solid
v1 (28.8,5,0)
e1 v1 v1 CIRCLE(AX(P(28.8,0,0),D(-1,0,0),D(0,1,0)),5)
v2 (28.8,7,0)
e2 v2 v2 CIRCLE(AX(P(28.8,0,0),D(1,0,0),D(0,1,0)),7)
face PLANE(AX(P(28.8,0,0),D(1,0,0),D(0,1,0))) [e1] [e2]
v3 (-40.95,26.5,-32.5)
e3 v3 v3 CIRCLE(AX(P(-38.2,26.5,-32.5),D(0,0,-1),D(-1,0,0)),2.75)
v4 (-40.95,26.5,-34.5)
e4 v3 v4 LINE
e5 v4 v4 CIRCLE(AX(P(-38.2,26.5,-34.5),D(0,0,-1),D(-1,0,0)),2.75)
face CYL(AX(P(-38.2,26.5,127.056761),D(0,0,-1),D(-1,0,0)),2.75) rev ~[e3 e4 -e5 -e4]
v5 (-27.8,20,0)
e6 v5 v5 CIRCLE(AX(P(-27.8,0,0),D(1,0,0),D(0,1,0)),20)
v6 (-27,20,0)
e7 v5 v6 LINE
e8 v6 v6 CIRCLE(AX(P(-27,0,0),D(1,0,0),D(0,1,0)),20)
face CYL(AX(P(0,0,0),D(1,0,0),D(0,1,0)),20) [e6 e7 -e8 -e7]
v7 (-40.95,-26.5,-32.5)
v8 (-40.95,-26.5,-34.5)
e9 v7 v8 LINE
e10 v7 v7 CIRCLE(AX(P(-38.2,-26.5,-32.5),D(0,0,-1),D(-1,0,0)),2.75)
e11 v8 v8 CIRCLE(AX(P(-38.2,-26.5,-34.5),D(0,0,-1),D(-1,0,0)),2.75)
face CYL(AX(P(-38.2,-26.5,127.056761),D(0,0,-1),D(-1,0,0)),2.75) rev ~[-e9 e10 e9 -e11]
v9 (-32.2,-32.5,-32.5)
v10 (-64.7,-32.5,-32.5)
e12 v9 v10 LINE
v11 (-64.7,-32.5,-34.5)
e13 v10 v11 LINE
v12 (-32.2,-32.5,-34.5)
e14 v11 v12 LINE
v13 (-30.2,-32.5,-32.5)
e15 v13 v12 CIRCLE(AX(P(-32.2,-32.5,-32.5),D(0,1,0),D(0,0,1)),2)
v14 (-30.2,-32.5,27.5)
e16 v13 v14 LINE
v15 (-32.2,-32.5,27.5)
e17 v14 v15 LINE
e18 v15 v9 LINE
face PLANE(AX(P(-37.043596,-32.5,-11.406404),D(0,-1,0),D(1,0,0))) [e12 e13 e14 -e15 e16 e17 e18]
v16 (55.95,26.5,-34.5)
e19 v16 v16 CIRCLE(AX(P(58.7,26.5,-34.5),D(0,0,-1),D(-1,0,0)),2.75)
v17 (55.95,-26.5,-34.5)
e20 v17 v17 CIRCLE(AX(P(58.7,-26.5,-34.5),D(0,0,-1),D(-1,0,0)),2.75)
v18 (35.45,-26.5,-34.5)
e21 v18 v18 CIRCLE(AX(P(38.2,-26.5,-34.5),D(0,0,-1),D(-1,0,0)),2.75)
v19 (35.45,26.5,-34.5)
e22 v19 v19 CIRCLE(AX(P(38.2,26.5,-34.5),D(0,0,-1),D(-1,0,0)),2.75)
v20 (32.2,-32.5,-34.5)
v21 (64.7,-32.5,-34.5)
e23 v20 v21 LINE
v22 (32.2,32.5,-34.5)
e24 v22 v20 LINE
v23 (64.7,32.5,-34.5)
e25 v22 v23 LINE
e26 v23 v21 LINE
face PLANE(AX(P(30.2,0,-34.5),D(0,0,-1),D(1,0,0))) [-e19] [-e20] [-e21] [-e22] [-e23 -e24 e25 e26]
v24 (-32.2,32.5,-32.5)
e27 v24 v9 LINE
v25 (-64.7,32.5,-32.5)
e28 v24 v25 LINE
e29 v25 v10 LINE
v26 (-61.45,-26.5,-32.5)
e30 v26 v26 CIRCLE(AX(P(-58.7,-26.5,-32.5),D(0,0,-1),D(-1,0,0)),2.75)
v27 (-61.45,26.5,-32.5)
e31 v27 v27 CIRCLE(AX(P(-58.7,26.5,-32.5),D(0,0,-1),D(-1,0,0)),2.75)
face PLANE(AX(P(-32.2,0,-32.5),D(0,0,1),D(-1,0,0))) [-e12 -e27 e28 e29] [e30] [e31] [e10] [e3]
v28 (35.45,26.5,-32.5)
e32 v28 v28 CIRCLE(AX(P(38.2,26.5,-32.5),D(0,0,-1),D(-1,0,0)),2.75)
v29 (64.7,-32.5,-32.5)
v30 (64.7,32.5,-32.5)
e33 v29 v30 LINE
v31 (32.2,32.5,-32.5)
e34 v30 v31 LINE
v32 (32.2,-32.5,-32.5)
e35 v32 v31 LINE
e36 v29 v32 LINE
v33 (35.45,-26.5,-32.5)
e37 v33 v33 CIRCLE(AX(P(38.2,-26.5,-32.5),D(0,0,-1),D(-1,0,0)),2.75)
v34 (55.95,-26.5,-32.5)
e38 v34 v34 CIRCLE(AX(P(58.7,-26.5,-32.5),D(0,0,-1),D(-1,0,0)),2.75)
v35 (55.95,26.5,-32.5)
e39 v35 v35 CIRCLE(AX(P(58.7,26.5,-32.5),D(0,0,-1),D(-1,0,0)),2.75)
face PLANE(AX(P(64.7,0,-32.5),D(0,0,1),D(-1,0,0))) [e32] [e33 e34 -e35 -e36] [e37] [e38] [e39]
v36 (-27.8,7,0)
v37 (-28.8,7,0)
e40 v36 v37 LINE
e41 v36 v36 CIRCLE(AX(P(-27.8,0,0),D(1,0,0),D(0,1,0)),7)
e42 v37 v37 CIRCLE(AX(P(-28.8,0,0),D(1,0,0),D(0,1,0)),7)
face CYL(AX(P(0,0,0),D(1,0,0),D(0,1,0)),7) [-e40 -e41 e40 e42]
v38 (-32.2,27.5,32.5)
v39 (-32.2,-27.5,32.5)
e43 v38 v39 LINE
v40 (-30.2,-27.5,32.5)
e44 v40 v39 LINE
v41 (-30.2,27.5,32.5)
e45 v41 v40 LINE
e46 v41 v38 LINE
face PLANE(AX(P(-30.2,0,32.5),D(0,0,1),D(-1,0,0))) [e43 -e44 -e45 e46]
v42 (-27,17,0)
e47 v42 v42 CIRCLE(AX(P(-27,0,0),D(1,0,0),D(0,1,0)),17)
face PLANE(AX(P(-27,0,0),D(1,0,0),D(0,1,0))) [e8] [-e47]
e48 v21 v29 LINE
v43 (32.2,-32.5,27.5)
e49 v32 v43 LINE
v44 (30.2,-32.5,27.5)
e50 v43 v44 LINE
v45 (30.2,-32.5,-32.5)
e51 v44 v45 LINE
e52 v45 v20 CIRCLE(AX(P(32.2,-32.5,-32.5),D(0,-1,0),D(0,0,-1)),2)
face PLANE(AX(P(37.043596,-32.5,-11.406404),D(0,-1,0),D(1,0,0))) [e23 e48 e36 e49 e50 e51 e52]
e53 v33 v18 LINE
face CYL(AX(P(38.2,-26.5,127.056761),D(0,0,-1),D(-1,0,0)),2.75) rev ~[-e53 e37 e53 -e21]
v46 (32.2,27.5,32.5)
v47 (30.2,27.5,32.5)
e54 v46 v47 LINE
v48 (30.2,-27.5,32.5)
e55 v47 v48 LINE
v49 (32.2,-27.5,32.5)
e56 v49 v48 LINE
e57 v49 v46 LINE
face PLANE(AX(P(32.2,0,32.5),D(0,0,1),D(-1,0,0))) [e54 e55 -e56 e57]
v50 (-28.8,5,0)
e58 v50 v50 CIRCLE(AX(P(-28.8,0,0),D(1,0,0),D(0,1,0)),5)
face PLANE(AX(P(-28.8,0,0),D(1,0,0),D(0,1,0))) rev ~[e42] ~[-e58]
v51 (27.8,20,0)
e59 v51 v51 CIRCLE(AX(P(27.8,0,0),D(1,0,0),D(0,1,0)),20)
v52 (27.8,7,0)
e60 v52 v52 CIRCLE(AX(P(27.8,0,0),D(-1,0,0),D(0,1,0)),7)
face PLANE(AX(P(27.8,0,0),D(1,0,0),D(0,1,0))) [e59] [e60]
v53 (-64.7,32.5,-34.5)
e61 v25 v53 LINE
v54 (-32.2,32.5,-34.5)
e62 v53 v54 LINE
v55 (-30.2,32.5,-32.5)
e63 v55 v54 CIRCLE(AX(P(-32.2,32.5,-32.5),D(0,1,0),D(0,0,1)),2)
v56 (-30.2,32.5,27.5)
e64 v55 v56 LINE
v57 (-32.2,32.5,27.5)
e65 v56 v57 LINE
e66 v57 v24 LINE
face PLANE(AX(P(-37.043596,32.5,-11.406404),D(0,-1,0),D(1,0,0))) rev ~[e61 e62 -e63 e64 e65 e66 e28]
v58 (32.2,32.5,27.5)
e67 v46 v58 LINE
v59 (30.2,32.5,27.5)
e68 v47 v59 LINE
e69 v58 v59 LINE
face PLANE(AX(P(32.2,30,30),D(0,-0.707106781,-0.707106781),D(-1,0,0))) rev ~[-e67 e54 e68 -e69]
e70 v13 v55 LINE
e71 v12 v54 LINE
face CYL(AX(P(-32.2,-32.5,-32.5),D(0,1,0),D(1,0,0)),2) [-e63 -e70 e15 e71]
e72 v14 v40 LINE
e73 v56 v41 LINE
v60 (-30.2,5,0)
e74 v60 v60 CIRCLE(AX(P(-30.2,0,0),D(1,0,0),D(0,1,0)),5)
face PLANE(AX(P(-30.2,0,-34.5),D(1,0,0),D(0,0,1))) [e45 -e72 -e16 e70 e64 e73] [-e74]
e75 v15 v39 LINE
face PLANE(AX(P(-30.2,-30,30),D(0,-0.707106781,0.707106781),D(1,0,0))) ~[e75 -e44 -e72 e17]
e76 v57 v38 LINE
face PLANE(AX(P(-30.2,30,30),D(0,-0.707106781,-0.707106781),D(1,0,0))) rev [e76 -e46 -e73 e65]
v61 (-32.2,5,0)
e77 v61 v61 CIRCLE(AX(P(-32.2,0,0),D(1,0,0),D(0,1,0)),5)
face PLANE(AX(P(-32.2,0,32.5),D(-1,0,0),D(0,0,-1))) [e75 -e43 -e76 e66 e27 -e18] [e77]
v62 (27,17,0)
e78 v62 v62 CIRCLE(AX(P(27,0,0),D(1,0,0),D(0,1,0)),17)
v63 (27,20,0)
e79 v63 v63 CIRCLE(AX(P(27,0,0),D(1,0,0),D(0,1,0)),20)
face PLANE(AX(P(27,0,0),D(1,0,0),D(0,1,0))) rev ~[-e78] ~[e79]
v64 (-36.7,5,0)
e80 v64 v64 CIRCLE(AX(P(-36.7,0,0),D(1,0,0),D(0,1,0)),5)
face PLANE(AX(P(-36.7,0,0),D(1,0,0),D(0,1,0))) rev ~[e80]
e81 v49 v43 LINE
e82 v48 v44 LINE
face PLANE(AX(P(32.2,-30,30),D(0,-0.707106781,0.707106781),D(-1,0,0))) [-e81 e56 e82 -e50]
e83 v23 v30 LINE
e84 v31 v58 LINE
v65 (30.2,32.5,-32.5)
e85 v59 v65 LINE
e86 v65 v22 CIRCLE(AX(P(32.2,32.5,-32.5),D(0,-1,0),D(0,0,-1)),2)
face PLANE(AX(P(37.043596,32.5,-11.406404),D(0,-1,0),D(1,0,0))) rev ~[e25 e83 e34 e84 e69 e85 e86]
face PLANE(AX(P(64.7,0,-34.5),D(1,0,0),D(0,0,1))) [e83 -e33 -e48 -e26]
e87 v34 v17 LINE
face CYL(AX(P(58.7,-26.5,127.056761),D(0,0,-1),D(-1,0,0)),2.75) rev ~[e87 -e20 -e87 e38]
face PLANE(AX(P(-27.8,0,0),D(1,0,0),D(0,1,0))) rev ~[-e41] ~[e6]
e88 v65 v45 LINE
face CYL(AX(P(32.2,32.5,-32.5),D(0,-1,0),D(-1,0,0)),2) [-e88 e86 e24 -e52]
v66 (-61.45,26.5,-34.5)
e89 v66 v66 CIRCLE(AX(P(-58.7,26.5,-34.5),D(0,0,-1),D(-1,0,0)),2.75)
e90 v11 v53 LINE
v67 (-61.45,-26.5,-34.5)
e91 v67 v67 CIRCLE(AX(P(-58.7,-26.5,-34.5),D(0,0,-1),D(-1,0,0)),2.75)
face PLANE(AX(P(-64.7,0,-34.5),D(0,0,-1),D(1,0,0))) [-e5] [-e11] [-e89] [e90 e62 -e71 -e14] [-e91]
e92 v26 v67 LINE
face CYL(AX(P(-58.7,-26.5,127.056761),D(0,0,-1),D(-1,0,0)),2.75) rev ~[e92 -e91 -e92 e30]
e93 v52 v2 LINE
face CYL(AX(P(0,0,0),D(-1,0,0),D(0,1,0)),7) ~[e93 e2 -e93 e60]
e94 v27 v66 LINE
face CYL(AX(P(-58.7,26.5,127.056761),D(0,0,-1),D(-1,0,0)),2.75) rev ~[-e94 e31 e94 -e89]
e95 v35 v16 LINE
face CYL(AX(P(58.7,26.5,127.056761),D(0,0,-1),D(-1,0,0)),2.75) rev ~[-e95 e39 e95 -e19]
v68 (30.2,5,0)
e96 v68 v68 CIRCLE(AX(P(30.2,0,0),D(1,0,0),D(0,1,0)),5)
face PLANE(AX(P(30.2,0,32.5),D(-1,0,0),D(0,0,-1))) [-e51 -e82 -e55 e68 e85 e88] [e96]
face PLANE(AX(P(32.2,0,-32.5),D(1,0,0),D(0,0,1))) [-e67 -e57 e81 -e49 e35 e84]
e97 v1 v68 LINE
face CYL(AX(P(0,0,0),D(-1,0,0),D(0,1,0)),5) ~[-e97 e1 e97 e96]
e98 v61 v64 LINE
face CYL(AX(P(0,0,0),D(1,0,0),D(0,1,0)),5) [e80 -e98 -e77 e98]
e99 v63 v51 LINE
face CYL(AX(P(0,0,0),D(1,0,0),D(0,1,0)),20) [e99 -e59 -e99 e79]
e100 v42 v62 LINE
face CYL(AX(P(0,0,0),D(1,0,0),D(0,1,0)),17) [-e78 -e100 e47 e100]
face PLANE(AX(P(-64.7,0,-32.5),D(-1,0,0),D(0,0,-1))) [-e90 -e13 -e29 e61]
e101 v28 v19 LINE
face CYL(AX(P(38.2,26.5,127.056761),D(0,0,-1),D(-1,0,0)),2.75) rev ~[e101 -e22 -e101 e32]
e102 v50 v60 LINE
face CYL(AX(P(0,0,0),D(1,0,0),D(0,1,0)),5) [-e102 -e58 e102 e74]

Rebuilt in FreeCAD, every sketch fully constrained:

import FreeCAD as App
import Part
import Sketcher

V = App.Vector
Q = App.Units.Quantity


def edges_at(feature, points):
    """Names of the edges that pass closest to the given points."""
    edges = feature.Shape.Edges
    near = lambda p: min(range(len(edges)), key=lambda i: edges[i].distToShape(Part.Vertex(*p))[0])
    return sorted({f"Edge{near(p) + 1}" for p in points})


def add_polygon(sketch, points):
    """Adds a closed chain of lines whose ends are joined by coincident constraints."""
    first, n = sketch.GeometryCount, len(points)
    for a, b in zip(points, points[1:] + points[:1]):
        sketch.addGeometry(Part.LineSegment(App.Vector(*a, 0), App.Vector(*b, 0)), False)
    for i in range(n):
        sketch.addConstraint(Sketcher.Constraint("Coincident", first + i, 2, first + (i + 1) % n, 1))

doc = App.newDocument("Part")
body = doc.addObject("PartDesign::Body", "Body")

# Sketch on YZ plane
sketch1 = body.newObject("Sketcher::SketchObject", "Sketch")
sketch1.AttachmentSupport = (doc.getObject("YZ_Plane"), [""])
sketch1.MapMode = "FlatFace"
sketch1.addGeometry(Part.Circle(V(0, 0, 0), V(0, 0, 1), 20), False)
sketch1.addConstraint([
    Sketcher.Constraint("Coincident", 0, 3, -1, 1),
    Sketcher.Constraint("Diameter", 0, Q("40 mm")),
])
pad1 = body.newObject("PartDesign::Pad", "Pad")
pad1.Profile = sketch1
pad1.Type = "TwoLengths"
pad1.Length = 27.8
pad1.Length2 = 27.8

# Sketch on YZ plane
sketch2 = body.newObject("Sketcher::SketchObject", "Sketch001")
sketch2.AttachmentSupport = (doc.getObject("YZ_Plane"), [""])
sketch2.MapMode = "FlatFace"
sketch2.addGeometry(Part.Circle(V(0, 0, 0), V(0, 0, 1), 7), False)
sketch2.addConstraint([
    Sketcher.Constraint("Coincident", 0, 3, -1, 1),
    Sketcher.Constraint("Diameter", 0, Q("14 mm")),
])
pad2 = body.newObject("PartDesign::Pad", "Pad001")
pad2.Profile = sketch2
pad2.Type = "TwoLengths"
pad2.Length = 28.8
pad2.Length2 = 28.8

# Sketch on YZ plane
sketch3 = body.newObject("Sketcher::SketchObject", "Sketch002")
sketch3.AttachmentSupport = (doc.getObject("YZ_Plane"), [""])
sketch3.MapMode = "FlatFace"
sketch3.addGeometry([
    Part.Circle(V(0, 0, 0), V(0, 0, 1), 20),
    Part.Circle(V(0, 0, 0), V(0, 0, 1), 17),
], False)
sketch3.addConstraint([
    Sketcher.Constraint("Coincident", 0, 3, -1, 1),
    Sketcher.Constraint("Coincident", 1, 3, -1, 1),
    Sketcher.Constraint("Diameter", 0, Q("40 mm")),
    Sketcher.Constraint("Diameter", 1, Q("34 mm")),
])
pocket1 = body.newObject("PartDesign::Pocket", "Pocket")
pocket1.Profile = sketch3
pocket1.Type = "TwoLengths"
pocket1.Length = 27
pocket1.Length2 = 27

# Sketch on YZ plane
sketch4 = body.newObject("Sketcher::SketchObject", "Sketch003")
sketch4.AttachmentSupport = (doc.getObject("YZ_Plane"), [""])
sketch4.MapMode = "FlatFace"
sketch4.addGeometry(Part.Circle(V(0, 0, 0), V(0, 0, 1), 5), False)
sketch4.addConstraint([
    Sketcher.Constraint("Coincident", 0, 3, -1, 1),
    Sketcher.Constraint("Diameter", 0, Q("10 mm")),
])
pad3 = body.newObject("PartDesign::Pad", "Pad002")
pad3.Profile = sketch4
pad3.Type = "TwoLengths"
pad3.Length = 32.2
pad3.Length2 = 36.7

# Sketch on XZ plane
sketch5 = body.newObject("Sketcher::SketchObject", "Sketch004")
sketch5.AttachmentSupport = (doc.getObject("XZ_Plane"), [""])
sketch5.MapMode = "FlatFace"
add_polygon(sketch5, [(32.2, 32.5), (30.2, 32.5), (30.2, -34.5), (64.7, -34.5), (64.7, -32.5), (32.2, -32.5)])  # lines 0-5
add_polygon(sketch5, [(-30.2, -34.5), (-30.2, 32.5), (-32.2, 32.5), (-32.2, -32.5), (-64.7, -32.5), (-64.7, -34.5)])  # lines 6-11
sketch5.addConstraint([
    Sketcher.Constraint("Horizontal", 0),
    Sketcher.Constraint("Vertical", 1),
    Sketcher.Constraint("Horizontal", 2),
    Sketcher.Constraint("Vertical", 3),
    Sketcher.Constraint("Horizontal", 4),
    Sketcher.Constraint("Vertical", 5),
    Sketcher.Constraint("Vertical", 6),
    Sketcher.Constraint("Horizontal", 7),
    Sketcher.Constraint("Vertical", 8),
    Sketcher.Constraint("Horizontal", 9),
    Sketcher.Constraint("Vertical", 10),
    Sketcher.Constraint("Horizontal", 11),
    Sketcher.Constraint("Symmetric", 4, 2, 7, 2, -1, 1),
    Sketcher.Constraint("Symmetric", 0, 2, 6, 2, -2),
    Sketcher.Constraint("Symmetric", 3, 2, 9, 2, -2),
    Sketcher.Constraint("Horizontal", 2, 2, 10, 2),
    Sketcher.Constraint("Equal", 7, 3),
    Sketcher.Constraint("DistanceX", 0, 2, 0, 1, Q("2 mm")),
    Sketcher.Constraint("DistanceY", 1, 2, 1, 1, Q("67 mm")),
    Sketcher.Constraint("DistanceX", 2, 1, 2, 2, Q("34.5 mm")),
    Sketcher.Constraint("DistanceX", -1, 1, 0, 2, Q("30.2 mm")),
])
pad4 = body.newObject("PartDesign::Pad", "Pad003")
pad4.Profile = sketch5
pad4.Type = "TwoLengths"
pad4.Length = 32.5
pad4.Length2 = 32.5
doc.recompute()

chamfer = body.newObject("PartDesign::Chamfer", "Chamfer")
chamfer.Base = (pad4, edges_at(pad4, [
    (31.2, -32.5, 32.5),
    (31.2, 32.5, 32.5),
    (-31.2, -32.5, 32.5),
    (-31.2, 32.5, 32.5),
]))
chamfer.Size = 5
doc.recompute()

fillet = body.newObject("PartDesign::Fillet", "Fillet")
fillet.Base = (chamfer, edges_at(chamfer, [(30.2, 0, -34.5), (-30.2, 0, -34.5)]))
fillet.Radius = 2

# Sketch on XY plane
sketch6 = body.newObject("Sketcher::SketchObject", "Sketch005")
sketch6.AttachmentSupport = (doc.getObject("XY_Plane"), [""])
sketch6.MapMode = "FlatFace"
sketch6.AttachmentOffset = App.Placement(V(0, 0, -32.5), App.Rotation())
sketch6.addGeometry([
    Part.Circle(V(38.2, 26.5, 0), V(0, 0, 1), 2.8),  # 0
    Part.Circle(V(38.2, -26.5, 0), V(0, 0, 1), 2.8),  # 1
    Part.Circle(V(58.7, -26.5, 0), V(0, 0, 1), 2.8),  # 2
    Part.Circle(V(-38.2, -26.5, 0), V(0, 0, 1), 2.8),  # 3
    Part.Circle(V(-58.7, -26.5, 0), V(0, 0, 1), 2.8),  # 4
    Part.Circle(V(-58.7, 26.5, 0), V(0, 0, 1), 2.8),  # 5
    Part.Circle(V(-38.2, 26.5, 0), V(0, 0, 1), 2.8),  # 6
    Part.Circle(V(58.7, 26.5, 0), V(0, 0, 1), 2.8),  # 7
], False)
sketch6.addConstraint([
    Sketcher.Constraint("Equal", 0, 1),
    Sketcher.Constraint("Equal", 1, 2),
    Sketcher.Constraint("Equal", 2, 3),
    Sketcher.Constraint("Equal", 3, 4),
    Sketcher.Constraint("Equal", 4, 5),
    Sketcher.Constraint("Equal", 5, 6),
    Sketcher.Constraint("Equal", 6, 7),
    Sketcher.Constraint("Symmetric", 0, 3, 3, 3, -1, 1),
    Sketcher.Constraint("Symmetric", 2, 3, 5, 3, -1, 1),
    Sketcher.Constraint("Symmetric", 1, 3, 6, 3, -1, 1),
    Sketcher.Constraint("Symmetric", 4, 3, 7, 3, -1, 1),
    Sketcher.Constraint("Symmetric", 1, 3, 3, 3, -2),
    Sketcher.Constraint("Symmetric", 2, 3, 4, 3, -2),
    Sketcher.Constraint("Horizontal", 1, 3, 2, 3),
    Sketcher.Constraint("Diameter", 0, Q("5.5 mm")),
    Sketcher.Constraint("DistanceY", 1, 3, 0, 3, Q("53 mm")),
    Sketcher.Constraint("DistanceX", -1, 1, 0, 3, Q("38.2 mm")),
    Sketcher.Constraint("DistanceX", -1, 1, 2, 3, Q("58.7 mm")),
])
doc.recompute()
hole = body.newObject("PartDesign::Hole", "Hole")
hole.Profile = sketch6
hole.ThreadType = "None"
hole.Diameter = 5.5
hole.DepthType = "ThroughAll"

doc.recompute()
